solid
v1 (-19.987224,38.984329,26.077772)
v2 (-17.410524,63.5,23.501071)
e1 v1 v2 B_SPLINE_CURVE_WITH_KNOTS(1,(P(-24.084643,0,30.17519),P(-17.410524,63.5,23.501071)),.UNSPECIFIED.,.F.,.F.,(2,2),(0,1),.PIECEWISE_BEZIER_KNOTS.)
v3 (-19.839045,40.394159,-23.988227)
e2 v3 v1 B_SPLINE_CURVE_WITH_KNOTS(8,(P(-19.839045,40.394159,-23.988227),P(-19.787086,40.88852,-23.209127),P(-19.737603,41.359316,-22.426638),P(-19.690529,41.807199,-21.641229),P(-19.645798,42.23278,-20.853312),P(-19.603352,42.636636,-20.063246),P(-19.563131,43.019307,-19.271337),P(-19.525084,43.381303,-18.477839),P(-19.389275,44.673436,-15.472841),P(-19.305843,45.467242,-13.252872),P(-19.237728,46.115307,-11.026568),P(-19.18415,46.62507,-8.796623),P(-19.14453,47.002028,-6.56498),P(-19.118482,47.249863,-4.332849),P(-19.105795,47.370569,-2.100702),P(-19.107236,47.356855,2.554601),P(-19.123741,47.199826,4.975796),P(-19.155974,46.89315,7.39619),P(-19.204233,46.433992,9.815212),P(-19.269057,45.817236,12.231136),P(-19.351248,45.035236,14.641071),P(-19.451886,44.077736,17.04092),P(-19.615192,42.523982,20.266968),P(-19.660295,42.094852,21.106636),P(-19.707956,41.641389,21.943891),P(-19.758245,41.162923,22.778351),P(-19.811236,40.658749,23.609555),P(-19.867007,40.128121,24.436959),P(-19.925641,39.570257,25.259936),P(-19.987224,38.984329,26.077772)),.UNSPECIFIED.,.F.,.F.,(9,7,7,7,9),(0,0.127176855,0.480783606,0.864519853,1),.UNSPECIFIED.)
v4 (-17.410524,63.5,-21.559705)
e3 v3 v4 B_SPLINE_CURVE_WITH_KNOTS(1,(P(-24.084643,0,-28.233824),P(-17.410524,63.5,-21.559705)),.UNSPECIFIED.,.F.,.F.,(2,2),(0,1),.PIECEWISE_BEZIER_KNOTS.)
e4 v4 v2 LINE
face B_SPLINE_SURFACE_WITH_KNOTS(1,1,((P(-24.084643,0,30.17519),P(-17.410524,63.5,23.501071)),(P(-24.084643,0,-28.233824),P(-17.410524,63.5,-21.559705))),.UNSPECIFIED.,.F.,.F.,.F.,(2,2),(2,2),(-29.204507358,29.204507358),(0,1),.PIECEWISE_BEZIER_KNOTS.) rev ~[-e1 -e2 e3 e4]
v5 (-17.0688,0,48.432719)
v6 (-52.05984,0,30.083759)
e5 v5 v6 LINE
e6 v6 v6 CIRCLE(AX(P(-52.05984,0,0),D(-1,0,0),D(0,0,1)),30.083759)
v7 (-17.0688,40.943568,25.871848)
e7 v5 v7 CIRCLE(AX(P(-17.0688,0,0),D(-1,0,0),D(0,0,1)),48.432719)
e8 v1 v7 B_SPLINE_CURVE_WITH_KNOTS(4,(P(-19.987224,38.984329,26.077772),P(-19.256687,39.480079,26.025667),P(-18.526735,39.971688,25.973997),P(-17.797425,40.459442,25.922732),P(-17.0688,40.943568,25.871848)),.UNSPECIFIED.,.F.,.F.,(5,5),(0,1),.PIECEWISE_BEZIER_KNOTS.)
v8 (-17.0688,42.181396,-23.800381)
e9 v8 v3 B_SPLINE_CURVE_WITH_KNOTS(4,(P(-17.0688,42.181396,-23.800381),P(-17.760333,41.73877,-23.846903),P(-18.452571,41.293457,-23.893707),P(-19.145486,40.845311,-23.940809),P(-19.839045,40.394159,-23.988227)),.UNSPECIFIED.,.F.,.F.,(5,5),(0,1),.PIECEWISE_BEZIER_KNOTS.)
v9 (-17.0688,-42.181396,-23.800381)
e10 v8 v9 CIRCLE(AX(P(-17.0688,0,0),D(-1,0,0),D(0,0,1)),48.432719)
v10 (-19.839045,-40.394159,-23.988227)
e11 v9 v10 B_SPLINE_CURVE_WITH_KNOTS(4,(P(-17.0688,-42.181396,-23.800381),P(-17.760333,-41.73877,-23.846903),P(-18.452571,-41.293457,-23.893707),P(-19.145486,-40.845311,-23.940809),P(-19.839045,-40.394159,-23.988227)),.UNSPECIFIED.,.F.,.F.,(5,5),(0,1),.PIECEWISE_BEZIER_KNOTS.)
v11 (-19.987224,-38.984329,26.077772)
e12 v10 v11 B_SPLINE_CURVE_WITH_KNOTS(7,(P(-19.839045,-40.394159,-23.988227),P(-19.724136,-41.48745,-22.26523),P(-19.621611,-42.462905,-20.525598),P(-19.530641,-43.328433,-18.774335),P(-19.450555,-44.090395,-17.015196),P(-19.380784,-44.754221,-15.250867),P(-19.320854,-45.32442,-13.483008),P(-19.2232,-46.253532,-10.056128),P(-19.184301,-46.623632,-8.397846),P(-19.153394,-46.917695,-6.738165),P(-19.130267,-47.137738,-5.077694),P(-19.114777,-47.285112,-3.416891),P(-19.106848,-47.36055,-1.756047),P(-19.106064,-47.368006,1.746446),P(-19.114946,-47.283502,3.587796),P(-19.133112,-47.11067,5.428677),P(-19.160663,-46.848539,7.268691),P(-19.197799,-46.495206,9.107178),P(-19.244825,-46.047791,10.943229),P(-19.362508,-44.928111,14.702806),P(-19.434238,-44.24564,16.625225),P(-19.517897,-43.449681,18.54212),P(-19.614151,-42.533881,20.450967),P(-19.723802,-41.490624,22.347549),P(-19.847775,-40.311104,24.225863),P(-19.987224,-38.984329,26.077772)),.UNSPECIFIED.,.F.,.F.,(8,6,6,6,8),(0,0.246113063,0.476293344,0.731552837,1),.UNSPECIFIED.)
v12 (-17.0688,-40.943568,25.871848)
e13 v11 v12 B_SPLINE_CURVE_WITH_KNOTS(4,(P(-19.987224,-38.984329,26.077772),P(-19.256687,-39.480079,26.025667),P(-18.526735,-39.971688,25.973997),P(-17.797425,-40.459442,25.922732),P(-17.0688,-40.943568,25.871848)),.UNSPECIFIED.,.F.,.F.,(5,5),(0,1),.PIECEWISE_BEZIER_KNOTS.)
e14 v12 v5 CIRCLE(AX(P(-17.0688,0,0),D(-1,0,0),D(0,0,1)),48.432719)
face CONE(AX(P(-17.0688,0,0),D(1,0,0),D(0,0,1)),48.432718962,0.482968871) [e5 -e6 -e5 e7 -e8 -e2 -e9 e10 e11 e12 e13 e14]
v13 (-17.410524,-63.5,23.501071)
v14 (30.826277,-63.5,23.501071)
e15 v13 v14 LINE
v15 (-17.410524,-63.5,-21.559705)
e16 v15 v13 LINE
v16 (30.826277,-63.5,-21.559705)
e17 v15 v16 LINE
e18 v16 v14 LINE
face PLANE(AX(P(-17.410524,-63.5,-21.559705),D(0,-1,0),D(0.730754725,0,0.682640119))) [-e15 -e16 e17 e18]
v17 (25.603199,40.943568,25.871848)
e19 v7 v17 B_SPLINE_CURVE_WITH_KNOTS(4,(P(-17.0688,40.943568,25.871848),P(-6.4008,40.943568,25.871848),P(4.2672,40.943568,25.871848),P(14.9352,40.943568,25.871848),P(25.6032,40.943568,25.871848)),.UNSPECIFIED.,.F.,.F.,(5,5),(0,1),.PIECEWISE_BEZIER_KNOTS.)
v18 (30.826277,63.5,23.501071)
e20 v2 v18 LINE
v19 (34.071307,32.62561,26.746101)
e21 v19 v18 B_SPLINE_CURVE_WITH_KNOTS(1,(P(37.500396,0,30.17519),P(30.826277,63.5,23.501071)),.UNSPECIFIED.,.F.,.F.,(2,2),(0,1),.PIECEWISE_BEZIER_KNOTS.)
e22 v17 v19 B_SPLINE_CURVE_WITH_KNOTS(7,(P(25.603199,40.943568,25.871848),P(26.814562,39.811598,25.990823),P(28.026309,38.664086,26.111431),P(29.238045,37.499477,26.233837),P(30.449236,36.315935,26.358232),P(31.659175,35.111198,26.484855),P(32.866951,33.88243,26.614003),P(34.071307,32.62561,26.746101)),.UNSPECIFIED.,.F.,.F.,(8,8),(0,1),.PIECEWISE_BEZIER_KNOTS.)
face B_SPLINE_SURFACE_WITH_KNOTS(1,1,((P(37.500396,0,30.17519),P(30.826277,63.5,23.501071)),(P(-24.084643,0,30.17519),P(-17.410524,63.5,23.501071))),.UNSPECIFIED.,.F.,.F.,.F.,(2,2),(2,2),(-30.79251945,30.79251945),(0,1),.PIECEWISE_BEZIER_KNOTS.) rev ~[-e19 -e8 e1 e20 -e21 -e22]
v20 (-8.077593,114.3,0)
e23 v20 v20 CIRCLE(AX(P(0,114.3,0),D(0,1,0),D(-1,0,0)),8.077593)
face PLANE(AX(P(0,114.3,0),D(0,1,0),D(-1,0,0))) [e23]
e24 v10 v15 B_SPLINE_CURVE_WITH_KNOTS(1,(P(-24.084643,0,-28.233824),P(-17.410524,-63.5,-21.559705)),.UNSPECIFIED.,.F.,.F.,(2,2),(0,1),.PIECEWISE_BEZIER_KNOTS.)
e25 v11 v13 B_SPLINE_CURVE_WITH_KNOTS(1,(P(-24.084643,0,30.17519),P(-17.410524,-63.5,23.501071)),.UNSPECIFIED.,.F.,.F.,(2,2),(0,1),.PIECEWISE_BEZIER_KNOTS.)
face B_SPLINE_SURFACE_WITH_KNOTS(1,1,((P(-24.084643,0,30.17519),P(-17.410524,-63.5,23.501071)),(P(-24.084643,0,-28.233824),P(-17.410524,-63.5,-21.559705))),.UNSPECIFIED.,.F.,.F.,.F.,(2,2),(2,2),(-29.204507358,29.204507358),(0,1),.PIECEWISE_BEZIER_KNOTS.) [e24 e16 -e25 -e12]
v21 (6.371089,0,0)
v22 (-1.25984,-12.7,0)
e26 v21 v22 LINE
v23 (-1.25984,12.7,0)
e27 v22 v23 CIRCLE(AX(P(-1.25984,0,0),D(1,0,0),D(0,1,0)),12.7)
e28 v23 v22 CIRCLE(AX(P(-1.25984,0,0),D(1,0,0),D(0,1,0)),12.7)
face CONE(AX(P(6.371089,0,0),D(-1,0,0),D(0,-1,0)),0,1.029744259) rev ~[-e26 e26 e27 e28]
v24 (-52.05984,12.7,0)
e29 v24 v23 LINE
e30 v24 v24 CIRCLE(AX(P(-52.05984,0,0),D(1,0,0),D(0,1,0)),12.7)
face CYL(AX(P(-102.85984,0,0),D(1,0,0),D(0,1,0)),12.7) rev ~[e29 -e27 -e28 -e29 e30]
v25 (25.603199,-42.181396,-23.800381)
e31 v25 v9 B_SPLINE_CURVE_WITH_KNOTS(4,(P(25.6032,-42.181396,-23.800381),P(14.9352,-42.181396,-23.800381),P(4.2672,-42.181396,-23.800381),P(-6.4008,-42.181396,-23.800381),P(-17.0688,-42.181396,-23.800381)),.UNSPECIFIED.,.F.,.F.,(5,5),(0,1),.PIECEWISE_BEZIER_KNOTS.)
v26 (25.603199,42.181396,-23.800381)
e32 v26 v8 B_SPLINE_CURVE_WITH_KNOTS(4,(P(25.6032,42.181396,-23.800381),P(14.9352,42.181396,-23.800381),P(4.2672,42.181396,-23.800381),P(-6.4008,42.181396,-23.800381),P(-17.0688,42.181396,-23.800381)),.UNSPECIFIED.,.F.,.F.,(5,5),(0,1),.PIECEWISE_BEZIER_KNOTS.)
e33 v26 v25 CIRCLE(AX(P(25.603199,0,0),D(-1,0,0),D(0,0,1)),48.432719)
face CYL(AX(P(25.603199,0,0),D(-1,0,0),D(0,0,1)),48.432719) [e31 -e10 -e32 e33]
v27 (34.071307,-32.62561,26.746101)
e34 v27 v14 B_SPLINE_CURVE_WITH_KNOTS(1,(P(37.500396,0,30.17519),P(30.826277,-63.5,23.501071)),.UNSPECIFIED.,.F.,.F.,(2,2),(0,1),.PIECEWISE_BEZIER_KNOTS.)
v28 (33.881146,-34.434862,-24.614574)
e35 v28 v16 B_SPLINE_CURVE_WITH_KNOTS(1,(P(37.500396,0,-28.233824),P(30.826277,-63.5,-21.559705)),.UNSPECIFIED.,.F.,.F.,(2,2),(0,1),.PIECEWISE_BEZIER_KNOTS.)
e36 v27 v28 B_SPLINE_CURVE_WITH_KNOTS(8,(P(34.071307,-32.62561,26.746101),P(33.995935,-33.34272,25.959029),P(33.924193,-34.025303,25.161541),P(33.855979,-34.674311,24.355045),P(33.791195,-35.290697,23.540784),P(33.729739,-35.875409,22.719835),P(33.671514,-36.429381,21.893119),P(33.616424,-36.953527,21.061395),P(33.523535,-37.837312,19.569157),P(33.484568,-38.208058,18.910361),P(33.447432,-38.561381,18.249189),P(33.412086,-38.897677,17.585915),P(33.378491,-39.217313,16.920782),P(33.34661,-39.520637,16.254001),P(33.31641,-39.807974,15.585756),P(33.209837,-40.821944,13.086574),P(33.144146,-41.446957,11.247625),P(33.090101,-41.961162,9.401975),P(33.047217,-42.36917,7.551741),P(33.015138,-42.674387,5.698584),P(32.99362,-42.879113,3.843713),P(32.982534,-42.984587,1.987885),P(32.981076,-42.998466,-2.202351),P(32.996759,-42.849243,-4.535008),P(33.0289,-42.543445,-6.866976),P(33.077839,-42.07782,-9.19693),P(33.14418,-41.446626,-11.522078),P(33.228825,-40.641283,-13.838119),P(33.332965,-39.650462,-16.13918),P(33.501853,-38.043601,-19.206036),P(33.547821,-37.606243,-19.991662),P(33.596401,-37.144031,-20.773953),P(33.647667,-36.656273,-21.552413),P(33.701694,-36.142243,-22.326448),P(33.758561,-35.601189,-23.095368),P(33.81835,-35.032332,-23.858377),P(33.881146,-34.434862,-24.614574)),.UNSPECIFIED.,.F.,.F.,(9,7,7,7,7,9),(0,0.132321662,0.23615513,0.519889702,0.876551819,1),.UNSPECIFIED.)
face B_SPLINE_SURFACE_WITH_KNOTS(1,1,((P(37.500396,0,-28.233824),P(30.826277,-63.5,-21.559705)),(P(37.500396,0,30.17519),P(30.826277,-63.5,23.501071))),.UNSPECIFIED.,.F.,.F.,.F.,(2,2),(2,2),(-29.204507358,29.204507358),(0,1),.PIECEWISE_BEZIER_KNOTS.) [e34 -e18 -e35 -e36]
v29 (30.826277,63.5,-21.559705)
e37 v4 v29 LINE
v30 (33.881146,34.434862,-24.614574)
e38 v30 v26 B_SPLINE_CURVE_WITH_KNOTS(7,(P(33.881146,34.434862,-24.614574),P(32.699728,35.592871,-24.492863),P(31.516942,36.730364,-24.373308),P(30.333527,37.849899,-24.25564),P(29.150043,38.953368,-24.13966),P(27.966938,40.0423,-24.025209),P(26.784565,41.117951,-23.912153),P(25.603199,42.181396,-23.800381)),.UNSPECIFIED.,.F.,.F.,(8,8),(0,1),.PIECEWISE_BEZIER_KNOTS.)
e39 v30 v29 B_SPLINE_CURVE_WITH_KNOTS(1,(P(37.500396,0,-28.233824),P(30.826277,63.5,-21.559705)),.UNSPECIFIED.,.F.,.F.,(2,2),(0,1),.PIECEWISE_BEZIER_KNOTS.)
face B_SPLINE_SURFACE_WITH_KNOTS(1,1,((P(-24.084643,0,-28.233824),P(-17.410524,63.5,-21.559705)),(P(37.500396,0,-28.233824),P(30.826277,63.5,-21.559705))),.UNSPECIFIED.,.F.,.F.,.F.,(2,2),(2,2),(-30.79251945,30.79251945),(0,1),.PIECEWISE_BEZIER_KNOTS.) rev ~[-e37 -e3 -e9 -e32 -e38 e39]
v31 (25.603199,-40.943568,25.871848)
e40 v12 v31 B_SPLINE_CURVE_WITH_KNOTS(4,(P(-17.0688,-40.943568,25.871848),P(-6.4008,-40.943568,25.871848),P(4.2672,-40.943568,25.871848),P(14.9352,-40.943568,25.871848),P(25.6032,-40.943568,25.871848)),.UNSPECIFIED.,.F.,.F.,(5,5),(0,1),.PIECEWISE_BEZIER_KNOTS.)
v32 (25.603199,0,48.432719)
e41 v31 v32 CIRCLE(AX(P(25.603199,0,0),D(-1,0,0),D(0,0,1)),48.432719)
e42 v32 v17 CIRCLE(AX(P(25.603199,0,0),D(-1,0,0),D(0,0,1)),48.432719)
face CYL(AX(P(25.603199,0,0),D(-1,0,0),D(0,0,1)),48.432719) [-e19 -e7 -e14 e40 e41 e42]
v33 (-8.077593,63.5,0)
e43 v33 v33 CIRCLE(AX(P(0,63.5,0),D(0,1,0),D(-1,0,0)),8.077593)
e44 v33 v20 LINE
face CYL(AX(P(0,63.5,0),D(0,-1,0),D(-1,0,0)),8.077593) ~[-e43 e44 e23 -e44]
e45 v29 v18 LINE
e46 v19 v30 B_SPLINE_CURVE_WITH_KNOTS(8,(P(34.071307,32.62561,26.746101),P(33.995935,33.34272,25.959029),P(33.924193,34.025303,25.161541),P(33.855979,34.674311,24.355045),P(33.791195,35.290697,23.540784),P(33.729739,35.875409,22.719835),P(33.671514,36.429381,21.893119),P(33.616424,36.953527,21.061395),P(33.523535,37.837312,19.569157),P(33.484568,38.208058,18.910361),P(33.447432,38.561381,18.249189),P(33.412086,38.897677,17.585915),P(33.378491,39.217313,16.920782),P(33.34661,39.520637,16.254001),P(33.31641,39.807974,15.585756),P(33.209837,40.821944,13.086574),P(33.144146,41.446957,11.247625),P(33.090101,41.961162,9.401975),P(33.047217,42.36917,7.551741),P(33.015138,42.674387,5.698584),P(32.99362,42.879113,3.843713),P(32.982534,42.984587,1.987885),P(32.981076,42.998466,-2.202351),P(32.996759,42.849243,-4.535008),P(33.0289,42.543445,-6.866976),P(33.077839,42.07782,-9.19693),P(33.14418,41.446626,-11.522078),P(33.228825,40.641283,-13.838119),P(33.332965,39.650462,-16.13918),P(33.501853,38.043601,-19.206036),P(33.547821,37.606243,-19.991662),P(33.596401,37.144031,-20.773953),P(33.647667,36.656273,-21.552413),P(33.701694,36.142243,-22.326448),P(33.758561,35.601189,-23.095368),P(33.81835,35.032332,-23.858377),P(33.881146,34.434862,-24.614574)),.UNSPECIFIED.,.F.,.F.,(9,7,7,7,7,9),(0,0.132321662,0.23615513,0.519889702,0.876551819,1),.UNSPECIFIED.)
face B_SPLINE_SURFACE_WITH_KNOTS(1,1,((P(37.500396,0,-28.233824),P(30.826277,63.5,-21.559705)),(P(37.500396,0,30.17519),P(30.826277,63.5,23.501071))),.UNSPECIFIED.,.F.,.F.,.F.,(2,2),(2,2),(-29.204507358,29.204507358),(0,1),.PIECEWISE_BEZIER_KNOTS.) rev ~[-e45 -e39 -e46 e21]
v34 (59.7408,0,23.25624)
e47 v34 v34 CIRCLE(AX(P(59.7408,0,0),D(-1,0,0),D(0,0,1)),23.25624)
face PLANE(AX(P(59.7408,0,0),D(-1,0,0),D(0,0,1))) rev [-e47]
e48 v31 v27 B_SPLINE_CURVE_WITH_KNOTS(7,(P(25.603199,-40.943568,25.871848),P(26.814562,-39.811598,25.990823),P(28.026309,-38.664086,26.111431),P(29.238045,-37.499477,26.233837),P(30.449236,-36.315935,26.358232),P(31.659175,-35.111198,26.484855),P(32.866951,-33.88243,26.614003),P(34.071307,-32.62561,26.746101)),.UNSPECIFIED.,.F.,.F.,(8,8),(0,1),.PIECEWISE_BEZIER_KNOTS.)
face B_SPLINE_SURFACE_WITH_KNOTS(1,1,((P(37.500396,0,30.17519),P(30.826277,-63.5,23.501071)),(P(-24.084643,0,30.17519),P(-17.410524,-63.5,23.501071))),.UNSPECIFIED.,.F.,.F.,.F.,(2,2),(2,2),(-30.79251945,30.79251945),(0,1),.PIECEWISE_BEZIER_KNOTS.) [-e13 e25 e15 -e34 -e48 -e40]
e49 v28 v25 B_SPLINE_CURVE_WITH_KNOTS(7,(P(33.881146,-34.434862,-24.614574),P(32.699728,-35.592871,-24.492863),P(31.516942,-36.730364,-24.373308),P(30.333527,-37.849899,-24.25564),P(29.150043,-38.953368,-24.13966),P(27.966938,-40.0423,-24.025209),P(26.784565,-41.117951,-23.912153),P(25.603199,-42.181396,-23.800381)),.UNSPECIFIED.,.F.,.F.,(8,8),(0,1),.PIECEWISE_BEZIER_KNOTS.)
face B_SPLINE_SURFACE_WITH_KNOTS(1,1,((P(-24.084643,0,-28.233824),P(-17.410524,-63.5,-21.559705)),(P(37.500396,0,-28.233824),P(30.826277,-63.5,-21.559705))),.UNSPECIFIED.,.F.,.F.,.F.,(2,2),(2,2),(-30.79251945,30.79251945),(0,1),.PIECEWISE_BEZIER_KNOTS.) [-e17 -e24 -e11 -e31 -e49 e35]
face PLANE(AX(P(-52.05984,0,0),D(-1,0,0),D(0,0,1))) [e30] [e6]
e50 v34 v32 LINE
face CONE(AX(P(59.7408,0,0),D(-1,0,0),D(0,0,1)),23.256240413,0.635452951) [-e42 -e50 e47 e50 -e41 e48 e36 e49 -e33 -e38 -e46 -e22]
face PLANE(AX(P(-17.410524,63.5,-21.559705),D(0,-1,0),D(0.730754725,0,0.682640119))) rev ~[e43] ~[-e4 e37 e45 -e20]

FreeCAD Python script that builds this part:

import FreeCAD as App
import Part
import Sketcher
Q = App.Units.Quantity


def add_polygon(sketch, points):
    """Adds a closed chain of lines whose ends are joined by coincident constraints."""
    first, n = sketch.GeometryCount, len(points)
    for a, b in zip(points, points[1:] + points[:1]):
        sketch.addGeometry(Part.LineSegment(App.Vector(*a, 0), App.Vector(*b, 0)), False)
    for i in range(n):
        sketch.addConstraint(Sketcher.Constraint("Coincident", first + i, 2, first + (i + 1) % n, 1))

doc = App.newDocument("Part")
body = doc.addObject("PartDesign::Body", "Body")

# Sketch on XZ plane
sketch1 = body.newObject("Sketcher::SketchObject", "Sketch")
sketch1.AttachmentSupport = (doc.getObject("XZ_Plane"), [""])
sketch1.MapMode = "FlatFace"
add_polygon(sketch1, [(-24.084643, 30.17519), (-24.084643, -28.233824), (37.500396, -28.233824), (37.500396, 30.17519)])  # lines 0-3
sketch1.addConstraint([
    Sketcher.Constraint("Vertical", 0),
    Sketcher.Constraint("Horizontal", 1),
    Sketcher.Constraint("Vertical", 2),
    Sketcher.Constraint("Horizontal", 3),
    Sketcher.Constraint("DistanceX", 1, 1, 1, 2, Q("61.585039 mm")),
    Sketcher.Constraint("DistanceY", 0, 2, 0, 1, Q("58.409015 mm")),
    Sketcher.Constraint("DistanceY", -1, 1, 2, 2, Q("30.17519 mm")),
    Sketcher.Constraint("DistanceX", 0, 2, -1, 1, Q("24.084643 mm")),
])
pad1 = body.newObject("PartDesign::Pad", "Pad")
pad1.Profile = sketch1
pad1.Length = Q("5 in")
pad1.Midplane = True
pad1.TaperAngle = -6

# Sketch on XZ plane
sketch2 = body.newObject("Sketcher::SketchObject", "Sketch001")
sketch2.AttachmentSupport = (doc.getObject("XZ_Plane"), [""])
sketch2.MapMode = "FlatFace"
sketch2.AttachmentOffset = App.Placement(App.Vector(0, 0, -2.5 * 25.4), App.Rotation())
sketch2.addGeometry(Part.Circle(App.Vector(0, 0, 0), App.Vector(0, 0, 1), 8.077593), False)
sketch2.addConstraint([
    Sketcher.Constraint("Coincident", 0, 3, -1, 1),
    Sketcher.Constraint("Diameter", 0, Q("16.155186 mm")),
])
pad2 = body.newObject("PartDesign::Pad", "Pad001")
pad2.Profile = sketch2
pad2.Length = Q("2 in")
pad2.Reversed = True

# Sketch on XZ plane
sketch3 = body.newObject("Sketcher::SketchObject", "Sketch002")
sketch3.AttachmentSupport = (doc.getObject("XZ_Plane"), [""])
sketch3.MapMode = "FlatFace"
add_polygon(sketch3, [(-52.05984, 0), (59.7408, 0), (59.7408, 23.25624), (25.603199, 48.432719), (-17.0688, 48.432719), (-52.05984, 30.083759)])  # lines 0-5
sketch3.addConstraint([
    Sketcher.Constraint("Horizontal", 0),
    Sketcher.Constraint("Vertical", 1),
    Sketcher.Constraint("Horizontal", 3),
    Sketcher.Constraint("Vertical", 5),
    Sketcher.Constraint("PointOnObject", 0, 2, -1),
    Sketcher.Constraint("DistanceX", 3, 2, 3, 1, Q("1.68 in")),
    Sketcher.Constraint("DistanceX", 0, 1, 0, 2, Q("4.4016 in")),
    Sketcher.Constraint("DistanceY", 1, 1, 1, 2, Q("0.9156 in")),
    Sketcher.Constraint("DistanceY", 5, 2, 5, 1, Q("1.1844 in")),
    Sketcher.Constraint("DistanceX", -1, 1, 0, 2, Q("2.352 in")),
    Sketcher.Constraint("DistanceX", -1, 1, 2, 2, Q("1.008 in")),
    Sketcher.Constraint("DistanceY", -1, 1, 2, 2, Q("1.9068 in")),
])
revolution = body.newObject("PartDesign::Revolution", "Revolution")
revolution.Profile = sketch3
revolution.ReferenceAxis = (sketch3, ["H_Axis"])
revolution.Angle = 360

# Sketch on YZ plane
sketch4 = body.newObject("Sketcher::SketchObject", "Sketch003")
sketch4.AttachmentSupport = (doc.getObject("YZ_Plane"), [""])
sketch4.MapMode = "FlatFace"
sketch4.AttachmentOffset = App.Placement(App.Vector(0, 0, -2.0496 * 25.4), App.Rotation())
sketch4.addGeometry(Part.Circle(App.Vector(0, 0, 0), App.Vector(0, 0, 1), 12.7), False)
sketch4.addConstraint([
    Sketcher.Constraint("Coincident", 0, 3, -1, 1),
    Sketcher.Constraint("Diameter", 0, Q("1 in")),
])
doc.recompute()
hole = body.newObject("PartDesign::Hole", "Hole")
hole.Profile = sketch4
hole.ThreadType = "None"
hole.Diameter = Q("1 in")
hole.DepthType = "Dimension"
hole.Depth = Q("2 in")
hole.DrillPoint = "Angled"
hole.DrillPointAngle = 118
hole.Reversed = True

doc.recompute()
